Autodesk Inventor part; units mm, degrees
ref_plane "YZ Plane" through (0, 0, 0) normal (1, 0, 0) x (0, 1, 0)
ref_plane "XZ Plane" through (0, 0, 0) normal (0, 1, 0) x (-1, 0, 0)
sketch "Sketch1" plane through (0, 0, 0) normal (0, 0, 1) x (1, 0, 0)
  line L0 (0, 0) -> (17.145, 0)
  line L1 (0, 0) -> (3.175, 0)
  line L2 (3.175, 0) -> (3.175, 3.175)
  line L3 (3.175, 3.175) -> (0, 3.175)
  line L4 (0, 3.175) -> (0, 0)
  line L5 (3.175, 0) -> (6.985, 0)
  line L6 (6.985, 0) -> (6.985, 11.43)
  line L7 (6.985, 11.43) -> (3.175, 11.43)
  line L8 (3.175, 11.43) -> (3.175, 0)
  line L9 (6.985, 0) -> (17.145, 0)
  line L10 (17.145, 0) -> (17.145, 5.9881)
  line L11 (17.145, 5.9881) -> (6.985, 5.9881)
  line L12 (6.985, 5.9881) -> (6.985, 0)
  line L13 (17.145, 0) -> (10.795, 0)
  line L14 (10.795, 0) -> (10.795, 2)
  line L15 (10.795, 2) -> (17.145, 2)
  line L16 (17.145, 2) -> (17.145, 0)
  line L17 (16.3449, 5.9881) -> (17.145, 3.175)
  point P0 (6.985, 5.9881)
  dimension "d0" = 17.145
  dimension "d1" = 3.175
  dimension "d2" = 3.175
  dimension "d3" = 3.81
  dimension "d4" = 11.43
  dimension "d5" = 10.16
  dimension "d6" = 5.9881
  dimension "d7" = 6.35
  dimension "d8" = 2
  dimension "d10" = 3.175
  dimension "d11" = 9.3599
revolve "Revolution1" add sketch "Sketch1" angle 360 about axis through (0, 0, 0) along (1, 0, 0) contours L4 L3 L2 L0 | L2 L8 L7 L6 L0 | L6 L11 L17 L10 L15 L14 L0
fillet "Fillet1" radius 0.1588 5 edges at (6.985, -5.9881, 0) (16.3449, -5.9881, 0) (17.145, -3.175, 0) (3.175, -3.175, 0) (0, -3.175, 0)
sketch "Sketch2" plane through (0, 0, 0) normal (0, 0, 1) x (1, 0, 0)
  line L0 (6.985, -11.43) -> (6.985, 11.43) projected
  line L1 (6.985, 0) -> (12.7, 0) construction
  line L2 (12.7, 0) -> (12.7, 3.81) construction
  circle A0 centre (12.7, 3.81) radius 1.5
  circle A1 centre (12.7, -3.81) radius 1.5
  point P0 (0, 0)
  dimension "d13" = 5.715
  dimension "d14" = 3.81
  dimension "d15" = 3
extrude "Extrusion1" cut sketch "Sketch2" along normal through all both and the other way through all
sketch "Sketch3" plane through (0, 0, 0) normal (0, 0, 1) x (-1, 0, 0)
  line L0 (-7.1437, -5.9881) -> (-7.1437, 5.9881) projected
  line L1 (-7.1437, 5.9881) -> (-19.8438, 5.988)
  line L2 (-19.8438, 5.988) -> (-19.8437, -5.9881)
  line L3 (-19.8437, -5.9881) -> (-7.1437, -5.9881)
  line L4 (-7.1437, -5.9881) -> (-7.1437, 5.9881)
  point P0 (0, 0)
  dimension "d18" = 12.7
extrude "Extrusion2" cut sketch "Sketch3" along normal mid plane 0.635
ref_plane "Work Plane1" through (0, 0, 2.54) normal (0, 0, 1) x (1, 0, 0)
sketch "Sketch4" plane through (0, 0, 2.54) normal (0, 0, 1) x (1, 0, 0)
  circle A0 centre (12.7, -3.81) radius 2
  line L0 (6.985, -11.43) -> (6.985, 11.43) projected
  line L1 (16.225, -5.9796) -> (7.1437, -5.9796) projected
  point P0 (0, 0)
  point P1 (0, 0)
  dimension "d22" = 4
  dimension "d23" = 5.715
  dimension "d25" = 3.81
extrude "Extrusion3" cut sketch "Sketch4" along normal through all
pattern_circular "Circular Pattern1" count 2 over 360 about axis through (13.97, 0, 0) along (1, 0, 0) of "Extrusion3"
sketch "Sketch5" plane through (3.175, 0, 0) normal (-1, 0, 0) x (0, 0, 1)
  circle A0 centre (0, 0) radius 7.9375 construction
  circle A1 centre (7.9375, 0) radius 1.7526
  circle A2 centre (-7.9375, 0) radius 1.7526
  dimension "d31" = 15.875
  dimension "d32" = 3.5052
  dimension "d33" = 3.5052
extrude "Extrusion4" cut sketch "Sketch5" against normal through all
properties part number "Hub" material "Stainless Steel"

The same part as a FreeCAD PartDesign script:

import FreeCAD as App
import Part
import Sketcher

V = App.Vector
Q = App.Units.Quantity


def edges_at(feature, points):
    """Names of the edges that pass closest to the given points."""
    edges = feature.Shape.Edges
    near = lambda p: min(range(len(edges)), key=lambda i: edges[i].distToShape(Part.Vertex(*p))[0])
    return sorted({f"Edge{near(p) + 1}" for p in points})

doc = App.newDocument("Part")
body = doc.addObject("PartDesign::Body", "Body")

sketch1 = body.newObject("Sketcher::SketchObject", "Sketch")
sketch1.AttachmentSupport = (doc.getObject("XY_Plane"), [""])
sketch1.MapMode = "FlatFace"
sketch1.addGeometry([
    Part.LineSegment(V(0, 3.175, 0), V(0, 0, 0)),
    Part.LineSegment(V(0, 0, 0), V(10.795, 0, 0)),
    Part.LineSegment(V(10.795, 0, 0), V(10.795, 2, 0)),
    Part.LineSegment(V(10.795, 2, 0), V(17.145, 2, 0)),
    Part.LineSegment(V(17.145, 2, 0), V(17.145, 3.175, 0)),
    Part.LineSegment(V(17.145, 3.175, 0), V(16.3449, 5.9881, 0)),
    Part.LineSegment(V(16.3449, 5.9881, 0), V(6.985, 5.9881, 0)),
    Part.LineSegment(V(6.985, 5.9881, 0), V(6.985, 11.43, 0)),
    Part.LineSegment(V(6.985, 11.43, 0), V(3.175, 11.43, 0)),
    Part.LineSegment(V(3.175, 11.43, 0), V(3.175, 3.175, 0)),
    Part.LineSegment(V(3.175, 3.175, 0), V(0, 3.175, 0)),
], False)
sketch1.addConstraint([
    Sketcher.Constraint("Coincident", 0, 2, 1, 1),
    Sketcher.Constraint("Coincident", 1, 2, 2, 1),
    Sketcher.Constraint("Coincident", 2, 2, 3, 1),
    Sketcher.Constraint("Coincident", 3, 2, 4, 1),
    Sketcher.Constraint("Coincident", 4, 2, 5, 1),
    Sketcher.Constraint("Coincident", 5, 2, 6, 1),
    Sketcher.Constraint("Coincident", 6, 2, 7, 1),
    Sketcher.Constraint("Coincident", 7, 2, 8, 1),
    Sketcher.Constraint("Coincident", 8, 2, 9, 1),
    Sketcher.Constraint("Coincident", 9, 2, 10, 1),
    Sketcher.Constraint("Coincident", 10, 2, 0, 1),
    Sketcher.Constraint("Vertical", 0),
    Sketcher.Constraint("Horizontal", 1),
    Sketcher.Constraint("Vertical", 2),
    Sketcher.Constraint("Horizontal", 3),
    Sketcher.Constraint("Vertical", 4),
    Sketcher.Constraint("Horizontal", 6),
    Sketcher.Constraint("Vertical", 7),
    Sketcher.Constraint("Horizontal", 8),
    Sketcher.Constraint("Vertical", 9),
    Sketcher.Constraint("Horizontal", 10),
    Sketcher.Constraint("Coincident", 0, 2, -1, 1),
    Sketcher.Constraint("Horizontal", 4, 2, 9, 2),
    Sketcher.Constraint("Equal", 10, 0),
    Sketcher.Constraint("DistanceX", 3, 1, 3, 2, Q("0.25 in")),
    Sketcher.Constraint("DistanceX", 8, 2, 8, 1, Q("0.15 in")),
    Sketcher.Constraint("DistanceX", 6, 2, 4, 2, Q("0.4 in")),
    Sketcher.Constraint("DistanceX", 10, 2, 10, 1, Q("0.125 in")),
    Sketcher.Constraint("DistanceY", -1, 1, 7, 2, Q("0.45 in")),
    Sketcher.Constraint("DistanceX", 6, 2, 6, 1, Q("0.3685 in")),
    Sketcher.Constraint("DistanceY", 2, 1, 2, 2, 2.0),
    Sketcher.Constraint("DistanceY", -1, 1, 5, 2, 5.988),
])
revolution = body.newObject("PartDesign::Revolution", "Revolution")
revolution.Profile = sketch1
revolution.ReferenceAxis = (sketch1, ["H_Axis"])
revolution.Angle = 360
doc.recompute()

fillet = body.newObject("PartDesign::Fillet", "Fillet")
fillet.Base = (revolution, edges_at(revolution, [
    (6.985, -5.988, 0),
    (16.345, -5.988, 0),
    (17.145, -3.175, 0),
    (3.175, -3.175, 0),
    (0, -3.175, 0),
]))
fillet.Radius = 0.1588

sketch2 = body.newObject("Sketcher::SketchObject", "Sketch001")
sketch2.AttachmentSupport = (doc.getObject("XY_Plane"), [""])
sketch2.MapMode = "FlatFace"
sketch2.addGeometry([
    Part.Circle(V(12.7, 3.81, 0), V(0, 0, 1), 1.5),
    Part.Circle(V(12.7, -3.81, 0), V(0, 0, 1), 1.5),
], False)
sketch2.addConstraint([
    Sketcher.Constraint("Equal", 0, 1),
    Sketcher.Constraint("Symmetric", 0, 3, 1, 3, -1),
    Sketcher.Constraint("Diameter", 0, Q("0.1181 in")),
    Sketcher.Constraint("DistanceY", -1, 1, 0, 3, Q("0.15 in")),
    Sketcher.Constraint("DistanceX", -1, 1, 0, 3, Q("0.5 in")),
])
pocket1 = body.newObject("PartDesign::Pocket", "Pocket")
pocket1.Profile = sketch2
pocket1.Type = "ThroughAll"
pocket1.Midplane = True

sketch3 = body.newObject("Sketcher::SketchObject", "Sketch002")
sketch3.AttachmentSupport = (doc.getObject("XY_Plane"), [""])
sketch3.MapMode = "FlatFace"
sketch3.addGeometry([
    Part.LineSegment(V(19.8437, 5.9881, 0), V(7.1437, 5.9881, 0)),
    Part.LineSegment(V(7.1437, 5.9881, 0), V(7.1437, -5.9881, 0)),
    Part.LineSegment(V(7.1437, -5.9881, 0), V(19.8438, -5.988, 0)),
    Part.LineSegment(V(19.8438, -5.988, 0), V(19.8437, 5.9881, 0)),
], False)
sketch3.addConstraint([
    Sketcher.Constraint("Coincident", 0, 2, 1, 1),
    Sketcher.Constraint("Coincident", 1, 2, 2, 1),
    Sketcher.Constraint("Coincident", 2, 2, 3, 1),
    Sketcher.Constraint("Coincident", 3, 2, 0, 1),
    Sketcher.Constraint("Horizontal", 0),
    Sketcher.Constraint("Vertical", 1),
    Sketcher.Constraint("Horizontal", 2),
    Sketcher.Constraint("Vertical", 3),
    Sketcher.Constraint("DistanceX", 0, 2, 0, 1, Q("0.5 in")),
    Sketcher.Constraint("DistanceY", 1, 2, 1, 1, Q("0.4715 in")),
    Sketcher.Constraint("DistanceX", -1, 1, 0, 2, Q("0.281248 in")),
    Sketcher.Constraint("DistanceY", -1, 1, 0, 2, 5.988),
])
pocket2 = body.newObject("PartDesign::Pocket", "Pocket001")
pocket2.Profile = sketch3
pocket2.Length = Q("0.025 in")
pocket2.Midplane = True

sketch4 = body.newObject("Sketcher::SketchObject", "Sketch003")
sketch4.AttachmentSupport = (doc.getObject("XY_Plane"), [""])
sketch4.MapMode = "FlatFace"
sketch4.AttachmentOffset = App.Placement(V(0, 0, 0.1 * 25.4), App.Rotation())
sketch4.addGeometry(Part.Circle(V(12.7, -3.81, 0), V(0, 0, 1), 2), False)
sketch4.addConstraint([
    Sketcher.Constraint("Diameter", 0, 4.0),
    Sketcher.Constraint("DistanceY", 0, 3, -1, 1, Q("0.15 in")),
    Sketcher.Constraint("DistanceX", -1, 1, 0, 3, Q("0.5 in")),
])
pocket3 = body.newObject("PartDesign::Pocket", "Pocket002")
pocket3.Profile = sketch4
pocket3.Type = "ThroughAll"
pocket3.Reversed = True
doc.recompute()

polarpattern = body.newObject("PartDesign::PolarPattern", "PolarPattern")
polarpattern.Originals = [pocket3]
polarpattern.Axis = (doc.getObject("X_Axis"), [""])
polarpattern.Angle = 360
polarpattern.Occurrences = 2
body.Tip = polarpattern

sketch5 = body.newObject("Sketcher::SketchObject", "Sketch004")
sketch5.AttachmentSupport = (doc.getObject("YZ_Plane"), [""])
sketch5.MapMode = "FlatFace"
sketch5.AttachmentOffset = App.Placement(V(0, 0, 0.125 * 25.4), App.Rotation())
sketch5.addGeometry([
    Part.Circle(V(0, 7.9375, 0), V(0, 0, 1), 1.7526),
    Part.Circle(V(0, -7.9375, 0), V(0, 0, 1), 1.7526),
], False)
sketch5.addConstraint([
    Sketcher.Constraint("Equal", 0, 1),
    Sketcher.Constraint("Symmetric", 0, 3, 1, 3, -1, 1),
    Sketcher.Constraint("PointOnObject", 0, 3, -2),
    Sketcher.Constraint("Diameter", 0, Q("0.138 in")),
    Sketcher.Constraint("DistanceY", 1, 3, 0, 3, Q("0.625 in")),
])
pocket4 = body.newObject("PartDesign::Pocket", "Pocket003")
pocket4.Profile = sketch5
pocket4.Type = "ThroughAll"
pocket4.Reversed = True

doc.recompute()
